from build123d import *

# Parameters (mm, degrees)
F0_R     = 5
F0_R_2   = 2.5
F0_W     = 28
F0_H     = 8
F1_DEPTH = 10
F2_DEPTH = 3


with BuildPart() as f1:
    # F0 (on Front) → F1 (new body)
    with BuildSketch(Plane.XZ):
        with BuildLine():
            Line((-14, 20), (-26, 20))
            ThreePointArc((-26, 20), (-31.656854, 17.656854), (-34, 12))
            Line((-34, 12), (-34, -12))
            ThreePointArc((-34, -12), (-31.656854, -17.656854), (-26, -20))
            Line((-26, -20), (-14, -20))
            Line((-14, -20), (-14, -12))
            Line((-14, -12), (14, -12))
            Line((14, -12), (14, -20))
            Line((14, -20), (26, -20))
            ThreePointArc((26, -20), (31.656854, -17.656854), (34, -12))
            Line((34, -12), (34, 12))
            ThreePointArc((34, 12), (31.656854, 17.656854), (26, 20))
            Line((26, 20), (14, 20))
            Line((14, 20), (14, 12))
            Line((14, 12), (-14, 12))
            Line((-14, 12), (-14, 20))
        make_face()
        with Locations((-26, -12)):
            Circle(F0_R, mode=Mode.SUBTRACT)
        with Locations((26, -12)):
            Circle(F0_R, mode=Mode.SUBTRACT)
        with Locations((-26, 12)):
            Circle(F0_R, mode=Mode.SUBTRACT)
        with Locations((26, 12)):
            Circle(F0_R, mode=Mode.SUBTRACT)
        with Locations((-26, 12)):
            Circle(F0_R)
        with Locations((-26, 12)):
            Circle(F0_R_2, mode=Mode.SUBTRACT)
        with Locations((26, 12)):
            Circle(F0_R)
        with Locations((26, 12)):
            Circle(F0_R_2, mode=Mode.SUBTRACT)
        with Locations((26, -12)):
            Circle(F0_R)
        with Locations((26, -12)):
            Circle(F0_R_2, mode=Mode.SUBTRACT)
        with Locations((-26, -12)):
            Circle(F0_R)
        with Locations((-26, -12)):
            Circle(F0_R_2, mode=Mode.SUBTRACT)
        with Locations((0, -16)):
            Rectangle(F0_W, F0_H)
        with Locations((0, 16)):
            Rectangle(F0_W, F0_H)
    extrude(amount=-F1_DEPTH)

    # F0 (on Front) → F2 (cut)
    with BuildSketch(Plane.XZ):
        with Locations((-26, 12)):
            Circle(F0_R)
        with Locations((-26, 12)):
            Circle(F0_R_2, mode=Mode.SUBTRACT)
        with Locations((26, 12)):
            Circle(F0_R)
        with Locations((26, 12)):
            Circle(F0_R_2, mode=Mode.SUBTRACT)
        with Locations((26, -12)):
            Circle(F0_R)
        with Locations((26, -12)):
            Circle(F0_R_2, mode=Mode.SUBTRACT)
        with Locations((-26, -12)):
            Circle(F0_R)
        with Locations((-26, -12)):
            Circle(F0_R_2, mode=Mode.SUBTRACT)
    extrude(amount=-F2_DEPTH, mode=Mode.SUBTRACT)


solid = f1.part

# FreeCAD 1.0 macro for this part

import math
import FreeCAD as App
import Part
import Sketcher
Q = App.Units.Quantity

doc = App.newDocument("Part")
params = doc.addObject("Spreadsheet::Sheet", "Params")
for row, (alias, value) in enumerate([
    ("sketch1_diameter", "5 mm"),
    ("sketch1_radius", "8.000001 mm"),
    ("sketch1_width", "52 mm"),
    ("sketch1_height", "24 mm"),
    ("pad1_length", "10 mm"),
    ("sketch2_diameter", "10 mm"),
    ("sketch2_diameter2", "5 mm"),
    ("pocket1_length", "3 mm"),
], start=1):
    params.set(f"A{row}", alias)
    params.set(f"B{row}", "=" + value)
    params.setAlias(f"B{row}", alias)

body = doc.addObject("PartDesign::Body", "Body")

# Sketch on XZ plane
sketch1 = body.newObject("Sketcher::SketchObject", "Sketch")
sketch1.AttachmentSupport = (doc.getObject("XZ_Plane"), [""])
sketch1.MapMode = "FlatFace"
sketch1.addGeometry([
    Part.ArcOfCircle(Part.Circle(App.Vector(-26, 12, 0), App.Vector(0, 0, 1), 8), math.radians(90), math.radians(180)),  # 0
    Part.LineSegment(App.Vector(-34, 12, 0), App.Vector(-34, -12, 0)),  # 1
    Part.ArcOfCircle(Part.Circle(App.Vector(-26, -12, 0), App.Vector(0, 0, 1), 8), math.radians(-180), math.radians(-90)),  # 2
    Part.LineSegment(App.Vector(-26, -20, 0), App.Vector(26, -20, 0)),  # 3
    Part.ArcOfCircle(Part.Circle(App.Vector(26, -12, 0), App.Vector(0, 0, 1), 8), math.radians(-90), math.radians(0)),  # 4
    Part.LineSegment(App.Vector(34, -12, 0), App.Vector(34, 12, 0)),  # 5
    Part.ArcOfCircle(Part.Circle(App.Vector(26, 12, 0), App.Vector(0, 0, 1), 8), math.radians(0), math.radians(90)),  # 6
    Part.LineSegment(App.Vector(26, 20, 0), App.Vector(-26, 20, 0)),  # 7
    Part.Circle(App.Vector(-26, -12, 0), App.Vector(0, 0, 1), 2.5),  # 8
    Part.Circle(App.Vector(26, -12, 0), App.Vector(0, 0, 1), 2.5),  # 9
    Part.Circle(App.Vector(-26, 12, 0), App.Vector(0, 0, 1), 2.5),  # 10
    Part.Circle(App.Vector(26, 12, 0), App.Vector(0, 0, 1), 2.5),  # 11
], False)
sketch1.addConstraint([
    Sketcher.Constraint("Tangent", 0, 2, 1, 1),
    Sketcher.Constraint("Tangent", 1, 2, 2, 1),
    Sketcher.Constraint("Tangent", 2, 2, 3, 1),
    Sketcher.Constraint("Tangent", 3, 2, 4, 1),
    Sketcher.Constraint("Tangent", 4, 2, 5, 1),
    Sketcher.Constraint("Tangent", 5, 2, 6, 1),
    Sketcher.Constraint("Tangent", 6, 2, 7, 1),
    Sketcher.Constraint("Tangent", 7, 2, 0, 1),
    Sketcher.Constraint("Vertical", 1),
    Sketcher.Constraint("Horizontal", 3),
    Sketcher.Constraint("Vertical", 5),
    Sketcher.Constraint("Horizontal", 7),
    Sketcher.Constraint("Coincident", 8, 3, 2, 3),
    Sketcher.Constraint("Coincident", 9, 3, 4, 3),
    Sketcher.Constraint("Coincident", 10, 3, 0, 3),
    Sketcher.Constraint("Coincident", 11, 3, 6, 3),
    Sketcher.Constraint("Equal", 0, 2),
    Sketcher.Constraint("Equal", 2, 4),
    Sketcher.Constraint("Equal", 4, 6),
    Sketcher.Constraint("Equal", 8, 9),
    Sketcher.Constraint("Equal", 9, 10),
    Sketcher.Constraint("Equal", 10, 11),
    Sketcher.Constraint("Symmetric", 0, 3, 4, 3, -1, 1),
    Sketcher.Constraint("Diameter", 8, Q("5 mm")),
    Sketcher.Constraint("Radius", 0, Q("8.000001 mm")),
    Sketcher.Constraint("DistanceX", 3, 1, 3, 2, Q("52 mm")),
    Sketcher.Constraint("DistanceY", 1, 2, 1, 1, Q("24 mm")),
])
sketch1.setExpression("Constraints[23]", "Params.sketch1_diameter")
sketch1.setExpression("Constraints[24]", "Params.sketch1_radius")
sketch1.setExpression("Constraints[25]", "Params.sketch1_width")
sketch1.setExpression("Constraints[26]", "Params.sketch1_height")
pad1 = body.newObject("PartDesign::Pad", "Pad")
pad1.Profile = sketch1
pad1.setExpression("Length", "Params.pad1_length")
pad1.Reversed = True

# Sketch on XZ plane
sketch2 = body.newObject("Sketcher::SketchObject", "Sketch001")
sketch2.AttachmentSupport = (doc.getObject("XZ_Plane"), [""])
sketch2.MapMode = "FlatFace"
sketch2.addGeometry([
    Part.Circle(App.Vector(-26, 12, 0), App.Vector(0, 0, 1), 5),  # 0
    Part.Circle(App.Vector(-26, 12, 0), App.Vector(0, 0, 1), 2.5),  # 1
    Part.Circle(App.Vector(26, 12, 0), App.Vector(0, 0, 1), 5),  # 2
    Part.Circle(App.Vector(26, 12, 0), App.Vector(0, 0, 1), 2.5),  # 3
    Part.Circle(App.Vector(26, -12, 0), App.Vector(0, 0, 1), 5),  # 4
    Part.Circle(App.Vector(26, -12, 0), App.Vector(0, 0, 1), 2.5),  # 5
    Part.Circle(App.Vector(-26, -12, 0), App.Vector(0, 0, 1), 5),  # 6
    Part.Circle(App.Vector(-26, -12, 0), App.Vector(0, 0, 1), 2.5),  # 7
], False)
sketch2.addConstraint([
    Sketcher.Constraint("Coincident", 1, 3, 0, 3),
    Sketcher.Constraint("Coincident", 3, 3, 2, 3),
    Sketcher.Constraint("Coincident", 5, 3, 4, 3),
    Sketcher.Constraint("Coincident", 7, 3, 6, 3),
    Sketcher.Constraint("Equal", 0, 2),
    Sketcher.Constraint("Equal", 1, 3),
    Sketcher.Constraint("Equal", 2, 4),
    Sketcher.Constraint("Equal", 3, 5),
    Sketcher.Constraint("Equal", 4, 6),
    Sketcher.Constraint("Equal", 5, 7),
    Sketcher.Constraint("Symmetric", 0, 3, 4, 3, -1, 1),
    Sketcher.Constraint("Symmetric", 2, 3, 6, 3, -1, 1),
    Sketcher.Constraint("Symmetric", 0, 3, 2, 3, -2),
    Sketcher.Constraint("Diameter", 0, Q("10 mm")),
    Sketcher.Constraint("Diameter", 1, Q("5 mm")),
    Sketcher.Constraint("DistanceX", 0, 3, -1, 1, Q("26 mm")),
    Sketcher.Constraint("DistanceY", -1, 1, 0, 3, Q("12 mm")),
])
sketch2.setExpression("Constraints[13]", "Params.sketch2_diameter")
sketch2.setExpression("Constraints[14]", "Params.sketch2_diameter2")
pocket1 = body.newObject("PartDesign::Pocket", "Pocket")
pocket1.Profile = sketch2
pocket1.setExpression("Length", "Params.pocket1_length")

doc.recompute()
